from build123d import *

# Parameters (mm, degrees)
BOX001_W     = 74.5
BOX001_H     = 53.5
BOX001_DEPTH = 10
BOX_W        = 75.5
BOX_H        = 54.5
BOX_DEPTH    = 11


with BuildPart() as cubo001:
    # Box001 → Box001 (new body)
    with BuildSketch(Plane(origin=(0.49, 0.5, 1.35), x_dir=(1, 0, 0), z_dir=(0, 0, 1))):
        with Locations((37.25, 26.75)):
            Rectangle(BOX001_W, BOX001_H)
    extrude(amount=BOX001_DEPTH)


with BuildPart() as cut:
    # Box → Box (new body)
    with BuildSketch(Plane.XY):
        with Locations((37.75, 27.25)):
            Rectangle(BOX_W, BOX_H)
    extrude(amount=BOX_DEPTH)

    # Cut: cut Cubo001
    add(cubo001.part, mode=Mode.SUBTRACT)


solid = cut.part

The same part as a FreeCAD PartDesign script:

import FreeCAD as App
import Part
import Sketcher
from FreeCAD import Vector

doc = App.newDocument("Part")
body = doc.addObject("PartDesign::Body", "Body")

# Sketch on XY plane
sketch1 = doc.addObject("Sketcher::SketchObject", "Sketch")
body.addObject(sketch1)
sketch1.AttachmentSupport = (doc.XY_Plane, [""])
sketch1.MapMode = "FlatFace"
sketch1.AttachmentOffset = App.Placement(Vector(0, 0, 1.35), App.Rotation())
sketch1.addGeometry([
    Part.LineSegment(Vector(0, 54, 0), Vector(0, 0, 0)),
    Part.LineSegment(Vector(0, 0, 0), Vector(75, 0, 0)),
    Part.LineSegment(Vector(75, 0, 0), Vector(75, 54, 0)),
    Part.LineSegment(Vector(75, 54, 0), Vector(0, 54, 0)),
], False)
sketch1.addConstraint([
    Sketcher.Constraint("Coincident", 0, 2, 1, 1),
    Sketcher.Constraint("Coincident", 1, 2, 2, 1),
    Sketcher.Constraint("Coincident", 2, 2, 3, 1),
    Sketcher.Constraint("Coincident", 3, 2, 0, 1),
    Sketcher.Constraint("Vertical", 0),
    Sketcher.Constraint("Horizontal", 1),
    Sketcher.Constraint("Vertical", 2),
    Sketcher.Constraint("Horizontal", 3),
    Sketcher.Constraint("DistanceX", 1, 1, 1, 2, 74.5),
    Sketcher.Constraint("DistanceY", 0, 2, 0, 1, 53.5),
    Sketcher.Constraint("DistanceY", -1, 1, 2, 2, 54.0),
    Sketcher.Constraint("DistanceX", -1, 1, 0, 2, 0.49),
])
pad1 = doc.addObject("PartDesign::Pad", "Pad")
body.addObject(pad1)
pad1.Profile = sketch1
pad1.Length = 10
body2 = doc.addObject("PartDesign::Body", "Body001")

# Sketch on XY plane
sketch2 = doc.addObject("Sketcher::SketchObject", "Sketch001")
body2.addObject(sketch2)
sketch2.AttachmentSupport = (doc.getObject("XY_Plane001"), [""])
sketch2.MapMode = "FlatFace"
sketch2.addGeometry([
    Part.LineSegment(Vector(0, 54, 0), Vector(0, 0, 0)),
    Part.LineSegment(Vector(0, 0, 0), Vector(76, 0, 0)),
    Part.LineSegment(Vector(76, 0, 0), Vector(76, 54, 0)),
    Part.LineSegment(Vector(76, 54, 0), Vector(0, 54, 0)),
], False)
sketch2.addConstraint([
    Sketcher.Constraint("Coincident", 0, 2, 1, 1),
    Sketcher.Constraint("Coincident", 1, 2, 2, 1),
    Sketcher.Constraint("Coincident", 2, 2, 3, 1),
    Sketcher.Constraint("Coincident", 3, 2, 0, 1),
    Sketcher.Constraint("Vertical", 0),
    Sketcher.Constraint("Horizontal", 1),
    Sketcher.Constraint("Vertical", 2),
    Sketcher.Constraint("Horizontal", 3),
    Sketcher.Constraint("Coincident", 0, 2, -1, 1),
    Sketcher.Constraint("DistanceX", 1, 1, 1, 2, 75.5),
    Sketcher.Constraint("DistanceY", 0, 2, 0, 1, 54.5),
])
pad2 = doc.addObject("PartDesign::Pad", "Pad001")
body2.addObject(pad2)
pad2.Profile = sketch2
pad2.Length = 11
doc.recompute()

boolean = doc.addObject("PartDesign::Boolean", "Boolean")
body2.addObject(boolean)
boolean.Type = "Cut"
boolean.addObjects([body])

doc.recompute()
